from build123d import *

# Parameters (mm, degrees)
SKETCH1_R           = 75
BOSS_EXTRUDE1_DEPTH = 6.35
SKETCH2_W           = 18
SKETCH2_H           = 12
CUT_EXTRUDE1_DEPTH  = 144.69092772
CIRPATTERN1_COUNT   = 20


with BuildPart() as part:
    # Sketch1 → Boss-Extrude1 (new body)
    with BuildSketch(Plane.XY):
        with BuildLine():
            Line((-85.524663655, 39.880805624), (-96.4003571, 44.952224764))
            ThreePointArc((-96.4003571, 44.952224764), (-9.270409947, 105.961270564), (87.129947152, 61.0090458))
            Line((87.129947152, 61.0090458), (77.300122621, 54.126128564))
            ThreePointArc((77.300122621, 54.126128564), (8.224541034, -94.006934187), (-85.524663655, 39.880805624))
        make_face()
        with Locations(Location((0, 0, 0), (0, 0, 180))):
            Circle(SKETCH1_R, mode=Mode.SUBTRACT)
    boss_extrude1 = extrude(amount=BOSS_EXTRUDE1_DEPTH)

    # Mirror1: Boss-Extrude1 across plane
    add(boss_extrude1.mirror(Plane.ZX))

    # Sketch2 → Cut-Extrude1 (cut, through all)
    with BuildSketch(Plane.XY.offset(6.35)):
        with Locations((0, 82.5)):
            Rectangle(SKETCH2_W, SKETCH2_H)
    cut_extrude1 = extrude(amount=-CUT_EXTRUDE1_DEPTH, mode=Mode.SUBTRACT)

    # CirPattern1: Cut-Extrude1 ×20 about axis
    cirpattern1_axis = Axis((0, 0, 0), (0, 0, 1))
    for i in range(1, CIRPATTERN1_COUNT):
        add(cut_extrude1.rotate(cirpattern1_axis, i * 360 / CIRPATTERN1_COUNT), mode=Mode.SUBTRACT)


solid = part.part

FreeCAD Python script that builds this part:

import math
import FreeCAD as App
import Part
import Sketcher

V = App.Vector
Q = App.Units.Quantity

doc = App.newDocument("Part")
body = doc.addObject("PartDesign::Body", "Body")

sketch1 = body.newObject("Sketcher::SketchObject", "Sketch")
sketch1.AttachmentSupport = (doc.getObject("XY_Plane"), [""])
sketch1.MapMode = "FlatFace"
sketch1.addGeometry([
    Part.LineSegment(V(-96, 45, 0), V(-86, 40, 0)),
    Part.ArcOfCircle(Part.Circle(V(0, 0, 0), V(0, 0, 1), 94), math.radians(155), math.radians(395)),
    Part.LineSegment(V(77, 54, 0), V(87, 61, 0)),
    Part.ArcOfCircle(Part.Circle(V(0, 0, 0), V(0, 0, 1), 106), math.radians(35), math.radians(155)),
    Part.Circle(V(0, 0, 0), V(0, 0, 1), 75),
], False)
sketch1.addConstraint([
    Sketcher.Constraint("Coincident", 0, 2, 1, 1),
    Sketcher.Constraint("Coincident", 1, 2, 2, 1),
    Sketcher.Constraint("Coincident", 2, 2, 3, 1),
    Sketcher.Constraint("Coincident", 3, 2, 0, 1),
    Sketcher.Constraint("Coincident", 1, 3, -1, 1),
    Sketcher.Constraint("Coincident", 3, 3, -1, 1),
    Sketcher.Constraint("Coincident", 4, 3, -1, 1),
    Sketcher.Constraint("Diameter", 4, 150.0),
    Sketcher.Constraint("Angle", 0, Q("-25 deg")),
    Sketcher.Constraint("Angle", 2, Q("35 deg")),
    Sketcher.Constraint("Distance", 0, 12.0),
    Sketcher.Constraint("Radius", 1, 94.366025),
    Sketcher.Constraint("DistanceY", -1, 1, 1, 2, 54.126129),
    Sketcher.Constraint("DistanceX", 0, 2, 2, 2, 172.654611),
])
pad1 = body.newObject("PartDesign::Pad", "Pad")
pad1.Profile = sketch1
pad1.Length = 6.35
doc.recompute()

mirrored = body.newObject("PartDesign::Mirrored", "Mirrored")
mirrored.Originals = [pad1]
mirrored.MirrorPlane = (doc.getObject("XZ_Plane"), [""])
body.Tip = mirrored

sketch2 = body.newObject("Sketcher::SketchObject", "Sketch001")
sketch2.AttachmentSupport = (doc.getObject("XY_Plane"), [""])
sketch2.MapMode = "FlatFace"
sketch2.AttachmentOffset = App.Placement(V(0, 0, 6.35), App.Rotation())
sketch2.addGeometry([
    Part.LineSegment(V(-9, 88, 0), V(-9, 76, 0)),
    Part.LineSegment(V(-9, 76, 0), V(9, 76, 0)),
    Part.LineSegment(V(9, 76, 0), V(9, 88, 0)),
    Part.LineSegment(V(9, 88, 0), V(-9, 88, 0)),
], False)
sketch2.addConstraint([
    Sketcher.Constraint("Coincident", 0, 2, 1, 1),
    Sketcher.Constraint("Coincident", 1, 2, 2, 1),
    Sketcher.Constraint("Coincident", 2, 2, 3, 1),
    Sketcher.Constraint("Coincident", 3, 2, 0, 1),
    Sketcher.Constraint("Vertical", 0),
    Sketcher.Constraint("Horizontal", 1),
    Sketcher.Constraint("Vertical", 2),
    Sketcher.Constraint("Horizontal", 3),
    Sketcher.Constraint("DistanceX", 1, 1, 1, 2, 18.0),
    Sketcher.Constraint("DistanceY", 0, 2, 0, 1, 12.0),
    Sketcher.Constraint("DistanceX", 0, 2, -1, 1, 9.0),
    Sketcher.Constraint("DistanceY", -1, 1, 0, 2, 76.5),
])
pocket1 = body.newObject("PartDesign::Pocket", "Pocket")
pocket1.Profile = sketch2
pocket1.Type = "ThroughAll"
doc.recompute()

polarpattern = body.newObject("PartDesign::PolarPattern", "PolarPattern")
polarpattern.Originals = [pocket1]
polarpattern.Axis = (doc.getObject("Z_Axis"), [""])
polarpattern.Angle = 360
polarpattern.Occurrences = 20
body.Tip = polarpattern

doc.recompute()
